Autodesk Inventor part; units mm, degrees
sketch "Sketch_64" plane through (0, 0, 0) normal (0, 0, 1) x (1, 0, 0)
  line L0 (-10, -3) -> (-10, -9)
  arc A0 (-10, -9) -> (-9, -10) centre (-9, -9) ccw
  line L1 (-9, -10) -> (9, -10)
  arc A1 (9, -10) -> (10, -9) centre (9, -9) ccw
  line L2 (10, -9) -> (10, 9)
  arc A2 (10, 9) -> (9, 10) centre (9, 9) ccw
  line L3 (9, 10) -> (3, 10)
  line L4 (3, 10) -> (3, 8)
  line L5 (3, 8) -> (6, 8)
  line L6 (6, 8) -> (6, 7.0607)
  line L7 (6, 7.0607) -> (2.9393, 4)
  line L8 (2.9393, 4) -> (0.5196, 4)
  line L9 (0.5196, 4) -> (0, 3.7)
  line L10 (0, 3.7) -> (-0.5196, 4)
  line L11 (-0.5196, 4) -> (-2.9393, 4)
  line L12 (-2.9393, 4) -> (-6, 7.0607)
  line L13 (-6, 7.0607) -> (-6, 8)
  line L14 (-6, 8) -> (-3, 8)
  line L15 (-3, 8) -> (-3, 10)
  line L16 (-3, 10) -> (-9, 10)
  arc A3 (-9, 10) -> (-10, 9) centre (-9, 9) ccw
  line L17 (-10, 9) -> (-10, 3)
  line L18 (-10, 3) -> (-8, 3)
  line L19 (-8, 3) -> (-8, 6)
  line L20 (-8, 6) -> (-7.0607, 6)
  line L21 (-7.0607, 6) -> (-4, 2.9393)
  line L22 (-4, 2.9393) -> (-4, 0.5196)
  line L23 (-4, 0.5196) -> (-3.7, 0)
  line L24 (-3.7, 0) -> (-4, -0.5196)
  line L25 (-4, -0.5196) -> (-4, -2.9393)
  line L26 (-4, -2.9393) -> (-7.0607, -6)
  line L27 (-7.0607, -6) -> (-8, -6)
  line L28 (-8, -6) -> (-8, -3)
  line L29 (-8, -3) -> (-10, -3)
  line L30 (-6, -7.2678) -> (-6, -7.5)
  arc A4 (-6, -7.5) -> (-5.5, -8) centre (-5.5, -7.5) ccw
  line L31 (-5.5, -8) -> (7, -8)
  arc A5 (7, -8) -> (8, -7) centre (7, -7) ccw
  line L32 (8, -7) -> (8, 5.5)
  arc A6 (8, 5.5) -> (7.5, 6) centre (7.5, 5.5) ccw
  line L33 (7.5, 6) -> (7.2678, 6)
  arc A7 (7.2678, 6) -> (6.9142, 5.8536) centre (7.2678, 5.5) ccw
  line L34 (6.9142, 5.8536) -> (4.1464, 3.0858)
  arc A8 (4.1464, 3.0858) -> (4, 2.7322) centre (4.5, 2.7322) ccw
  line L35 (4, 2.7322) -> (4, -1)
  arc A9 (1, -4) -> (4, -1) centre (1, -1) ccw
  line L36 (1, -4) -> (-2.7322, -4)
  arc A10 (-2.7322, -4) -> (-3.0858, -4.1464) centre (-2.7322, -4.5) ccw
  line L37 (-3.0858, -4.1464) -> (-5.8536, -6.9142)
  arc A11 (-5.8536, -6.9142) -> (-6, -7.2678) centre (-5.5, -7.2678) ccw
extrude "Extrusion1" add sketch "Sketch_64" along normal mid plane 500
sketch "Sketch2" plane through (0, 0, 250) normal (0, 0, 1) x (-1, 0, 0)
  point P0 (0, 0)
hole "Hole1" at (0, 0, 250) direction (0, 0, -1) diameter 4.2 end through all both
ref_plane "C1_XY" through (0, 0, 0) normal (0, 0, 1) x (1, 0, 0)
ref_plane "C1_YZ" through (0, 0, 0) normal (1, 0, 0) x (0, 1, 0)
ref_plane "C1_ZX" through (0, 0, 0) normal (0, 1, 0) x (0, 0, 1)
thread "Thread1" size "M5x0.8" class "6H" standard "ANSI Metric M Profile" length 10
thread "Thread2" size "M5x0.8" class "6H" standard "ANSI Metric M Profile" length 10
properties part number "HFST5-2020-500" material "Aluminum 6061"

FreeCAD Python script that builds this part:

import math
import FreeCAD as App
import Part
import Sketcher
from FreeCAD import Vector
Q = App.Units.Quantity

doc = App.newDocument("Part")
params = doc.addObject("Spreadsheet::Sheet", "Params")
for row, (alias, value) in enumerate([
    ("sketch1_radius", "1 mm"),
    ("sketch1_radius2", "3 mm"),
    ("sketch1_radius3", "0.5 mm"),
    ("sketch1_width", "2 mm"),
    ("sketch1_width2", "18 mm"),
    ("pad1_length", "500 mm"),
    ("sketch2_diameter", "4.2 mm"),
    ("hole_diameter", "4.2 mm"),
], start=1):
    params.set(f"A{row}", alias)
    params.set(f"B{row}", "=" + value)
    params.setAlias(f"B{row}", alias)

body = doc.addObject("PartDesign::Body", "Body")

# Sketch on XY plane
sketch1 = body.newObject("Sketcher::SketchObject", "Sketch")
sketch1.AttachmentSupport = (doc.getObject("XY_Plane"), [""])
sketch1.MapMode = "FlatFace"
sketch1.addGeometry(Part.LineSegment(Vector(-8, -3, 0), Vector(-10, -3, 0)), False)
sketch1.addGeometry(Part.LineSegment(Vector(-10, -3, 0), Vector(-10, -9, 0)), False)
sketch1.addGeometry(Part.ArcOfCircle(Part.Circle(Vector(-9, -9, 0), Vector(0, 0, 1), 1), math.radians(180), math.radians(270)), False)
sketch1.addGeometry(Part.LineSegment(Vector(-9, -10, 0), Vector(9, -10, 0)), False)
sketch1.addGeometry(Part.ArcOfCircle(Part.Circle(Vector(9, -9, 0), Vector(0, 0, 1), 1), math.radians(-90), math.radians(0)), False)
sketch1.addGeometry(Part.LineSegment(Vector(10, -9, 0), Vector(10, 9, 0)), False)
sketch1.addGeometry(Part.ArcOfCircle(Part.Circle(Vector(9, 9, 0), Vector(0, 0, 1), 1), math.radians(0), math.radians(90)), False)
sketch1.addGeometry(Part.LineSegment(Vector(9, 10, 0), Vector(3, 10, 0)), False)
sketch1.addGeometry(Part.LineSegment(Vector(3, 10, 0), Vector(3, 8, 0)), False)
sketch1.addGeometry(Part.LineSegment(Vector(3, 8, 0), Vector(6, 8, 0)), False)
sketch1.addGeometry(Part.LineSegment(Vector(6, 8, 0), Vector(6, 7.0607, 0)), False)
sketch1.addGeometry(Part.LineSegment(Vector(6, 7.0607, 0), Vector(2.9393, 4, 0)), False)
sketch1.addGeometry(Part.LineSegment(Vector(2.9393, 4, 0), Vector(0.5196, 4, 0)), False)
sketch1.addGeometry(Part.LineSegment(Vector(0.5196, 4, 0), Vector(0, 3.7, 0)), False)
sketch1.addGeometry(Part.LineSegment(Vector(0, 3.7, 0), Vector(-0.5196, 4, 0)), False)
sketch1.addGeometry(Part.LineSegment(Vector(-0.5196, 4, 0), Vector(-2.9393, 4, 0)), False)
sketch1.addGeometry(Part.LineSegment(Vector(-2.9393, 4, 0), Vector(-6, 7.0607, 0)), False)
sketch1.addGeometry(Part.LineSegment(Vector(-6, 7.0607, 0), Vector(-6, 8, 0)), False)
sketch1.addGeometry(Part.LineSegment(Vector(-6, 8, 0), Vector(-3, 8, 0)), False)
sketch1.addGeometry(Part.LineSegment(Vector(-3, 8, 0), Vector(-3, 10, 0)), False)
sketch1.addGeometry(Part.LineSegment(Vector(-3, 10, 0), Vector(-9, 10, 0)), False)
sketch1.addGeometry(Part.ArcOfCircle(Part.Circle(Vector(-9, 9, 0), Vector(0, 0, 1), 1), math.radians(90), math.radians(180)), False)
sketch1.addGeometry(Part.LineSegment(Vector(-10, 9, 0), Vector(-10, 3, 0)), False)
sketch1.addGeometry(Part.LineSegment(Vector(-10, 3, 0), Vector(-8, 3, 0)), False)
sketch1.addGeometry(Part.LineSegment(Vector(-8, 3, 0), Vector(-8, 6, 0)), False)
sketch1.addGeometry(Part.LineSegment(Vector(-8, 6, 0), Vector(-7.0607, 6, 0)), False)
sketch1.addGeometry(Part.LineSegment(Vector(-7.0607, 6, 0), Vector(-4, 2.9393, 0)), False)
sketch1.addGeometry(Part.LineSegment(Vector(-4, 2.9393, 0), Vector(-4, 0.5196, 0)), False)
sketch1.addGeometry(Part.LineSegment(Vector(-4, 0.5196, 0), Vector(-3.7, 0, 0)), False)
sketch1.addGeometry(Part.LineSegment(Vector(-3.7, 0, 0), Vector(-4, -0.5196, 0)), False)
sketch1.addGeometry(Part.LineSegment(Vector(-4, -0.5196, 0), Vector(-4, -2.9393, 0)), False)
sketch1.addGeometry(Part.LineSegment(Vector(-4, -2.9393, 0), Vector(-7.0607, -6, 0)), False)
sketch1.addGeometry(Part.LineSegment(Vector(-7.0607, -6, 0), Vector(-8, -6, 0)), False)
sketch1.addGeometry(Part.LineSegment(Vector(-8, -6, 0), Vector(-8, -3, 0)), False)
sketch1.addGeometry(Part.LineSegment(Vector(-6, -7.5, 0), Vector(-6, -7.2678, 0)), False)
sketch1.addGeometry(Part.ArcOfCircle(Part.Circle(Vector(-5.5, -7.2678, 0), Vector(0, 0, 1), 0.500066), math.radians(135), math.radians(180)), False)
sketch1.addGeometry(Part.LineSegment(Vector(-5.8536, -6.9142, 0), Vector(-3.0858, -4.1464, 0)), False)
sketch1.addGeometry(Part.ArcOfCircle(Part.Circle(Vector(-2.7322, -4.5, 0), Vector(0, 0, 1), 0.5), math.radians(90), math.radians(135)), False)
sketch1.addGeometry(Part.LineSegment(Vector(-2.7322, -4, 0), Vector(1, -4, 0)), False)
sketch1.addGeometry(Part.ArcOfCircle(Part.Circle(Vector(1, -1, 0), Vector(0, 0, 1), 3), math.radians(-90), math.radians(0)), False)
sketch1.addGeometry(Part.LineSegment(Vector(4, -1, 0), Vector(4, 2.7322, 0)), False)
sketch1.addGeometry(Part.ArcOfCircle(Part.Circle(Vector(4.5, 2.7322, 0), Vector(0, 0, 1), 0.500066), math.radians(135), math.radians(180)), False)
sketch1.addGeometry(Part.LineSegment(Vector(4.1464, 3.0858, 0), Vector(6.9142, 5.8536, 0)), False)
sketch1.addGeometry(Part.ArcOfCircle(Part.Circle(Vector(7.2678, 5.5, 0), Vector(0, 0, 1), 0.5), math.radians(90), math.radians(135)), False)
sketch1.addGeometry(Part.LineSegment(Vector(7.2678, 6, 0), Vector(7.5, 6, 0)), False)
sketch1.addGeometry(Part.ArcOfCircle(Part.Circle(Vector(7.5, 5.5, 0), Vector(0, 0, 1), 0.5), math.radians(0), math.radians(90)), False)
sketch1.addGeometry(Part.LineSegment(Vector(8, 5.5, 0), Vector(8, -7, 0)), False)
sketch1.addGeometry(Part.ArcOfCircle(Part.Circle(Vector(7, -7, 0), Vector(0, 0, 1), 1), math.radians(-90), math.radians(0)), False)
sketch1.addGeometry(Part.LineSegment(Vector(7, -8, 0), Vector(-5.5, -8, 0)), False)
sketch1.addGeometry(Part.ArcOfCircle(Part.Circle(Vector(-5.5, -7.5, 0), Vector(0, 0, 1), 0.5), math.radians(180), math.radians(270)), False)
sketch1.addConstraint(Sketcher.Constraint("Coincident", 0, 2, 1, 1))
sketch1.addConstraint(Sketcher.Constraint("Tangent", 1, 2, 2, 1))
sketch1.addConstraint(Sketcher.Constraint("Tangent", 2, 2, 3, 1))
sketch1.addConstraint(Sketcher.Constraint("Tangent", 3, 2, 4, 1))
sketch1.addConstraint(Sketcher.Constraint("Tangent", 4, 2, 5, 1))
sketch1.addConstraint(Sketcher.Constraint("Tangent", 5, 2, 6, 1))
sketch1.addConstraint(Sketcher.Constraint("Tangent", 6, 2, 7, 1))
sketch1.addConstraint(Sketcher.Constraint("Coincident", 7, 2, 8, 1))
sketch1.addConstraint(Sketcher.Constraint("Coincident", 8, 2, 9, 1))
sketch1.addConstraint(Sketcher.Constraint("Coincident", 9, 2, 10, 1))
sketch1.addConstraint(Sketcher.Constraint("Coincident", 10, 2, 11, 1))
sketch1.addConstraint(Sketcher.Constraint("Coincident", 11, 2, 12, 1))
sketch1.addConstraint(Sketcher.Constraint("Coincident", 12, 2, 13, 1))
sketch1.addConstraint(Sketcher.Constraint("Coincident", 13, 2, 14, 1))
sketch1.addConstraint(Sketcher.Constraint("Coincident", 14, 2, 15, 1))
sketch1.addConstraint(Sketcher.Constraint("Coincident", 15, 2, 16, 1))
sketch1.addConstraint(Sketcher.Constraint("Coincident", 16, 2, 17, 1))
sketch1.addConstraint(Sketcher.Constraint("Coincident", 17, 2, 18, 1))
sketch1.addConstraint(Sketcher.Constraint("Coincident", 18, 2, 19, 1))
sketch1.addConstraint(Sketcher.Constraint("Coincident", 19, 2, 20, 1))
sketch1.addConstraint(Sketcher.Constraint("Tangent", 20, 2, 21, 1))
sketch1.addConstraint(Sketcher.Constraint("Tangent", 21, 2, 22, 1))
sketch1.addConstraint(Sketcher.Constraint("Coincident", 22, 2, 23, 1))
sketch1.addConstraint(Sketcher.Constraint("Coincident", 23, 2, 24, 1))
sketch1.addConstraint(Sketcher.Constraint("Coincident", 24, 2, 25, 1))
sketch1.addConstraint(Sketcher.Constraint("Coincident", 25, 2, 26, 1))
sketch1.addConstraint(Sketcher.Constraint("Coincident", 26, 2, 27, 1))
sketch1.addConstraint(Sketcher.Constraint("Coincident", 27, 2, 28, 1))
sketch1.addConstraint(Sketcher.Constraint("Coincident", 28, 2, 29, 1))
sketch1.addConstraint(Sketcher.Constraint("Coincident", 29, 2, 30, 1))
sketch1.addConstraint(Sketcher.Constraint("Coincident", 30, 2, 31, 1))
sketch1.addConstraint(Sketcher.Constraint("Coincident", 31, 2, 32, 1))
sketch1.addConstraint(Sketcher.Constraint("Coincident", 32, 2, 33, 1))
sketch1.addConstraint(Sketcher.Constraint("Coincident", 33, 2, 0, 1))
sketch1.addConstraint(Sketcher.Constraint("Tangent", 34, 2, 35, 2))
sketch1.addConstraint(Sketcher.Constraint("Tangent", 35, 1, 36, 1))
sketch1.addConstraint(Sketcher.Constraint("Tangent", 36, 2, 37, 2))
sketch1.addConstraint(Sketcher.Constraint("Tangent", 37, 1, 38, 1))
sketch1.addConstraint(Sketcher.Constraint("Tangent", 38, 2, 39, 1))
sketch1.addConstraint(Sketcher.Constraint("Tangent", 39, 2, 40, 1))
sketch1.addConstraint(Sketcher.Constraint("Tangent", 40, 2, 41, 2))
sketch1.addConstraint(Sketcher.Constraint("Tangent", 41, 1, 42, 1))
sketch1.addConstraint(Sketcher.Constraint("Tangent", 42, 2, 43, 2))
sketch1.addConstraint(Sketcher.Constraint("Tangent", 43, 1, 44, 1))
sketch1.addConstraint(Sketcher.Constraint("Tangent", 44, 2, 45, 2))
sketch1.addConstraint(Sketcher.Constraint("Tangent", 45, 1, 46, 1))
sketch1.addConstraint(Sketcher.Constraint("Tangent", 46, 2, 47, 2))
sketch1.addConstraint(Sketcher.Constraint("Tangent", 47, 1, 48, 1))
sketch1.addConstraint(Sketcher.Constraint("Tangent", 48, 2, 49, 2))
sketch1.addConstraint(Sketcher.Constraint("Tangent", 49, 1, 34, 1))
sketch1.addConstraint(Sketcher.Constraint("Horizontal", 0))
sketch1.addConstraint(Sketcher.Constraint("Vertical", 1))
sketch1.addConstraint(Sketcher.Constraint("Horizontal", 3))
sketch1.addConstraint(Sketcher.Constraint("Vertical", 5))
sketch1.addConstraint(Sketcher.Constraint("Horizontal", 7))
sketch1.addConstraint(Sketcher.Constraint("Vertical", 8))
sketch1.addConstraint(Sketcher.Constraint("Horizontal", 9))
sketch1.addConstraint(Sketcher.Constraint("Vertical", 10))
sketch1.addConstraint(Sketcher.Constraint("Horizontal", 12))
sketch1.addConstraint(Sketcher.Constraint("Horizontal", 15))
sketch1.addConstraint(Sketcher.Constraint("Vertical", 17))
sketch1.addConstraint(Sketcher.Constraint("Horizontal", 18))
sketch1.addConstraint(Sketcher.Constraint("Vertical", 19))
sketch1.addConstraint(Sketcher.Constraint("Horizontal", 20))
sketch1.addConstraint(Sketcher.Constraint("Vertical", 22))
sketch1.addConstraint(Sketcher.Constraint("Horizontal", 23))
sketch1.addConstraint(Sketcher.Constraint("Vertical", 24))
sketch1.addConstraint(Sketcher.Constraint("Horizontal", 25))
sketch1.addConstraint(Sketcher.Constraint("Vertical", 27))
sketch1.addConstraint(Sketcher.Constraint("Vertical", 30))
sketch1.addConstraint(Sketcher.Constraint("Horizontal", 32))
sketch1.addConstraint(Sketcher.Constraint("Vertical", 33))
sketch1.addConstraint(Sketcher.Constraint("Vertical", 34))
sketch1.addConstraint(Sketcher.Constraint("Horizontal", 38))
sketch1.addConstraint(Sketcher.Constraint("Vertical", 40))
sketch1.addConstraint(Sketcher.Constraint("Horizontal", 44))
sketch1.addConstraint(Sketcher.Constraint("Vertical", 46))
sketch1.addConstraint(Sketcher.Constraint("Horizontal", 48))
sketch1.addConstraint(Sketcher.Constraint("Equal", 2, 4))
sketch1.addConstraint(Sketcher.Constraint("Equal", 4, 6))
sketch1.addConstraint(Sketcher.Constraint("Equal", 6, 21))
sketch1.addConstraint(Sketcher.Constraint("Equal", 35, 37))
sketch1.addConstraint(Sketcher.Constraint("Equal", 37, 41))
sketch1.addConstraint(Sketcher.Constraint("Equal", 41, 43))
sketch1.addConstraint(Sketcher.Constraint("Equal", 43, 45))
sketch1.addConstraint(Sketcher.Constraint("Equal", 21, 47))
sketch1.addConstraint(Sketcher.Constraint("Equal", 45, 49))
sketch1.addConstraint(Sketcher.Constraint("Symmetric", 2, 3, 6, 3, -1, 1))
sketch1.addConstraint(Sketcher.Constraint("Symmetric", 4, 3, 21, 3, -1, 1))
sketch1.addConstraint(Sketcher.Constraint("Symmetric", 12, 2, 14, 2, -2))
sketch1.addConstraint(Sketcher.Constraint("Symmetric", 10, 2, 16, 2, -2))
sketch1.addConstraint(Sketcher.Constraint("Symmetric", 8, 2, 18, 2, -2))
sketch1.addConstraint(Sketcher.Constraint("Symmetric", 27, 2, 29, 2, -1))
sketch1.addConstraint(Sketcher.Constraint("Symmetric", 25, 2, 31, 2, -1))
sketch1.addConstraint(Sketcher.Constraint("Symmetric", 23, 2, 33, 2, -1))
sketch1.addConstraint(Sketcher.Constraint("PointOnObject", 13, 2, -2))
sketch1.addConstraint(Sketcher.Constraint("PointOnObject", 28, 2, -1))
sketch1.addConstraint(Sketcher.Constraint("Perpendicular", 11, 16))
sketch1.addConstraint(Sketcher.Constraint("Parallel", 16, 26))
sketch1.addConstraint(Sketcher.Constraint("Perpendicular", 13, 28))
sketch1.addConstraint(Sketcher.Constraint("Perpendicular", 26, 31))
sketch1.addConstraint(Sketcher.Constraint("Parallel", 31, 36))
sketch1.addConstraint(Sketcher.Constraint("Parallel", 36, 42))
sketch1.addConstraint(Sketcher.Constraint("Horizontal", 25, 2, 43, 1))
sketch1.addConstraint(Sketcher.Constraint("Vertical", 17, 2, 34, 2))
sketch1.addConstraint(Sketcher.Constraint("Equal", 12, 15))
sketch1.addConstraint(Sketcher.Constraint("Equal", 20, 1))
sketch1.addConstraint(Sketcher.Constraint("Equal", 3, 5))
sketch1.addConstraint(Sketcher.Constraint("Equal", 23, 8))
sketch1.addConstraint(Sketcher.Constraint("Equal", 32, 10))
sketch1.addConstraint(Sketcher.Constraint("Equal", 18, 24))
sketch1.addConstraint(Sketcher.Constraint("Equal", 15, 27))
sketch1.addConstraint(Sketcher.Constraint("Equal", 44, 34))
sketch1.addConstraint(Sketcher.Constraint("Equal", 38, 40))
sketch1.addConstraint(Sketcher.Constraint("Equal", 16, 26))
sketch1.addConstraint(Sketcher.Constraint("Equal", 36, 42))
sketch1.addConstraint(Sketcher.Constraint("Radius", 2, 1.0))
sketch1.addConstraint(Sketcher.Constraint("Radius", 39, 3.0))
sketch1.addConstraint(Sketcher.Constraint("Radius", 35, 0.5))
sketch1.addConstraint(Sketcher.Constraint("DistanceX", 0, 2, 0, 1, 2.0))
sketch1.addConstraint(Sketcher.Constraint("DistanceX", 3, 1, 3, 2, 18.0))
sketch1.addConstraint(Sketcher.Constraint("DistanceX", 7, 2, 7, 1, 6.0))
sketch1.addConstraint(Sketcher.Constraint("DistanceX", 9, 1, 9, 2, 3.0))
sketch1.addConstraint(Sketcher.Constraint("Angle", 13, Q("-149.9993 deg")))
sketch1.addConstraint(Sketcher.Constraint("DistanceX", 48, 2, 48, 1, 12.5))
sketch1.addConstraint(Sketcher.Constraint("DistanceX", -1, 1, 39, 3, 1.0))
sketch1.addConstraint(Sketcher.Constraint("DistanceY", -1, 1, 11, 2, 4.0))
sketch1.addConstraint(Sketcher.Constraint("Distance", 13, 0.6))
sketch1.addConstraint(Sketcher.Constraint("DistanceX", 12, 2, 12, 1, 2.4197))
sketch1.addConstraint(Sketcher.Constraint("DistanceX", 38, 1, 38, 2, 3.7322))
sketch1.setExpression("Constraints[116]", "Params.sketch1_radius")
sketch1.setExpression("Constraints[117]", "Params.sketch1_radius2")
sketch1.setExpression("Constraints[118]", "Params.sketch1_radius3")
sketch1.setExpression("Constraints[119]", "Params.sketch1_width")
sketch1.setExpression("Constraints[120]", "Params.sketch1_width2")
pad1 = body.newObject("PartDesign::Pad", "Pad")
pad1.Profile = sketch1
pad1.setExpression("Length", "Params.pad1_length")
pad1.Midplane = True

# Sketch on XY plane
sketch2 = body.newObject("Sketcher::SketchObject", "Sketch001")
sketch2.AttachmentSupport = (doc.getObject("XY_Plane"), [""])
sketch2.MapMode = "FlatFace"
sketch2.AttachmentOffset = App.Placement(Vector(0, 0, 250), App.Rotation())
sketch2.addGeometry(Part.Circle(Vector(0, 0, 0), Vector(0, 0, 1), 2.1), False)
sketch2.addConstraint(Sketcher.Constraint("Coincident", 0, 3, -1, 1))
sketch2.addConstraint(Sketcher.Constraint("Diameter", 0, 4.2))
sketch2.setExpression("Constraints[1]", "Params.sketch2_diameter")
doc.recompute()
hole = body.newObject("PartDesign::Hole", "Hole")
hole.Profile = sketch2
hole.ThreadType = "None"
hole.setExpression("Diameter", "Params.hole_diameter")
hole.DepthType = "ThroughAll"

doc.recompute()
